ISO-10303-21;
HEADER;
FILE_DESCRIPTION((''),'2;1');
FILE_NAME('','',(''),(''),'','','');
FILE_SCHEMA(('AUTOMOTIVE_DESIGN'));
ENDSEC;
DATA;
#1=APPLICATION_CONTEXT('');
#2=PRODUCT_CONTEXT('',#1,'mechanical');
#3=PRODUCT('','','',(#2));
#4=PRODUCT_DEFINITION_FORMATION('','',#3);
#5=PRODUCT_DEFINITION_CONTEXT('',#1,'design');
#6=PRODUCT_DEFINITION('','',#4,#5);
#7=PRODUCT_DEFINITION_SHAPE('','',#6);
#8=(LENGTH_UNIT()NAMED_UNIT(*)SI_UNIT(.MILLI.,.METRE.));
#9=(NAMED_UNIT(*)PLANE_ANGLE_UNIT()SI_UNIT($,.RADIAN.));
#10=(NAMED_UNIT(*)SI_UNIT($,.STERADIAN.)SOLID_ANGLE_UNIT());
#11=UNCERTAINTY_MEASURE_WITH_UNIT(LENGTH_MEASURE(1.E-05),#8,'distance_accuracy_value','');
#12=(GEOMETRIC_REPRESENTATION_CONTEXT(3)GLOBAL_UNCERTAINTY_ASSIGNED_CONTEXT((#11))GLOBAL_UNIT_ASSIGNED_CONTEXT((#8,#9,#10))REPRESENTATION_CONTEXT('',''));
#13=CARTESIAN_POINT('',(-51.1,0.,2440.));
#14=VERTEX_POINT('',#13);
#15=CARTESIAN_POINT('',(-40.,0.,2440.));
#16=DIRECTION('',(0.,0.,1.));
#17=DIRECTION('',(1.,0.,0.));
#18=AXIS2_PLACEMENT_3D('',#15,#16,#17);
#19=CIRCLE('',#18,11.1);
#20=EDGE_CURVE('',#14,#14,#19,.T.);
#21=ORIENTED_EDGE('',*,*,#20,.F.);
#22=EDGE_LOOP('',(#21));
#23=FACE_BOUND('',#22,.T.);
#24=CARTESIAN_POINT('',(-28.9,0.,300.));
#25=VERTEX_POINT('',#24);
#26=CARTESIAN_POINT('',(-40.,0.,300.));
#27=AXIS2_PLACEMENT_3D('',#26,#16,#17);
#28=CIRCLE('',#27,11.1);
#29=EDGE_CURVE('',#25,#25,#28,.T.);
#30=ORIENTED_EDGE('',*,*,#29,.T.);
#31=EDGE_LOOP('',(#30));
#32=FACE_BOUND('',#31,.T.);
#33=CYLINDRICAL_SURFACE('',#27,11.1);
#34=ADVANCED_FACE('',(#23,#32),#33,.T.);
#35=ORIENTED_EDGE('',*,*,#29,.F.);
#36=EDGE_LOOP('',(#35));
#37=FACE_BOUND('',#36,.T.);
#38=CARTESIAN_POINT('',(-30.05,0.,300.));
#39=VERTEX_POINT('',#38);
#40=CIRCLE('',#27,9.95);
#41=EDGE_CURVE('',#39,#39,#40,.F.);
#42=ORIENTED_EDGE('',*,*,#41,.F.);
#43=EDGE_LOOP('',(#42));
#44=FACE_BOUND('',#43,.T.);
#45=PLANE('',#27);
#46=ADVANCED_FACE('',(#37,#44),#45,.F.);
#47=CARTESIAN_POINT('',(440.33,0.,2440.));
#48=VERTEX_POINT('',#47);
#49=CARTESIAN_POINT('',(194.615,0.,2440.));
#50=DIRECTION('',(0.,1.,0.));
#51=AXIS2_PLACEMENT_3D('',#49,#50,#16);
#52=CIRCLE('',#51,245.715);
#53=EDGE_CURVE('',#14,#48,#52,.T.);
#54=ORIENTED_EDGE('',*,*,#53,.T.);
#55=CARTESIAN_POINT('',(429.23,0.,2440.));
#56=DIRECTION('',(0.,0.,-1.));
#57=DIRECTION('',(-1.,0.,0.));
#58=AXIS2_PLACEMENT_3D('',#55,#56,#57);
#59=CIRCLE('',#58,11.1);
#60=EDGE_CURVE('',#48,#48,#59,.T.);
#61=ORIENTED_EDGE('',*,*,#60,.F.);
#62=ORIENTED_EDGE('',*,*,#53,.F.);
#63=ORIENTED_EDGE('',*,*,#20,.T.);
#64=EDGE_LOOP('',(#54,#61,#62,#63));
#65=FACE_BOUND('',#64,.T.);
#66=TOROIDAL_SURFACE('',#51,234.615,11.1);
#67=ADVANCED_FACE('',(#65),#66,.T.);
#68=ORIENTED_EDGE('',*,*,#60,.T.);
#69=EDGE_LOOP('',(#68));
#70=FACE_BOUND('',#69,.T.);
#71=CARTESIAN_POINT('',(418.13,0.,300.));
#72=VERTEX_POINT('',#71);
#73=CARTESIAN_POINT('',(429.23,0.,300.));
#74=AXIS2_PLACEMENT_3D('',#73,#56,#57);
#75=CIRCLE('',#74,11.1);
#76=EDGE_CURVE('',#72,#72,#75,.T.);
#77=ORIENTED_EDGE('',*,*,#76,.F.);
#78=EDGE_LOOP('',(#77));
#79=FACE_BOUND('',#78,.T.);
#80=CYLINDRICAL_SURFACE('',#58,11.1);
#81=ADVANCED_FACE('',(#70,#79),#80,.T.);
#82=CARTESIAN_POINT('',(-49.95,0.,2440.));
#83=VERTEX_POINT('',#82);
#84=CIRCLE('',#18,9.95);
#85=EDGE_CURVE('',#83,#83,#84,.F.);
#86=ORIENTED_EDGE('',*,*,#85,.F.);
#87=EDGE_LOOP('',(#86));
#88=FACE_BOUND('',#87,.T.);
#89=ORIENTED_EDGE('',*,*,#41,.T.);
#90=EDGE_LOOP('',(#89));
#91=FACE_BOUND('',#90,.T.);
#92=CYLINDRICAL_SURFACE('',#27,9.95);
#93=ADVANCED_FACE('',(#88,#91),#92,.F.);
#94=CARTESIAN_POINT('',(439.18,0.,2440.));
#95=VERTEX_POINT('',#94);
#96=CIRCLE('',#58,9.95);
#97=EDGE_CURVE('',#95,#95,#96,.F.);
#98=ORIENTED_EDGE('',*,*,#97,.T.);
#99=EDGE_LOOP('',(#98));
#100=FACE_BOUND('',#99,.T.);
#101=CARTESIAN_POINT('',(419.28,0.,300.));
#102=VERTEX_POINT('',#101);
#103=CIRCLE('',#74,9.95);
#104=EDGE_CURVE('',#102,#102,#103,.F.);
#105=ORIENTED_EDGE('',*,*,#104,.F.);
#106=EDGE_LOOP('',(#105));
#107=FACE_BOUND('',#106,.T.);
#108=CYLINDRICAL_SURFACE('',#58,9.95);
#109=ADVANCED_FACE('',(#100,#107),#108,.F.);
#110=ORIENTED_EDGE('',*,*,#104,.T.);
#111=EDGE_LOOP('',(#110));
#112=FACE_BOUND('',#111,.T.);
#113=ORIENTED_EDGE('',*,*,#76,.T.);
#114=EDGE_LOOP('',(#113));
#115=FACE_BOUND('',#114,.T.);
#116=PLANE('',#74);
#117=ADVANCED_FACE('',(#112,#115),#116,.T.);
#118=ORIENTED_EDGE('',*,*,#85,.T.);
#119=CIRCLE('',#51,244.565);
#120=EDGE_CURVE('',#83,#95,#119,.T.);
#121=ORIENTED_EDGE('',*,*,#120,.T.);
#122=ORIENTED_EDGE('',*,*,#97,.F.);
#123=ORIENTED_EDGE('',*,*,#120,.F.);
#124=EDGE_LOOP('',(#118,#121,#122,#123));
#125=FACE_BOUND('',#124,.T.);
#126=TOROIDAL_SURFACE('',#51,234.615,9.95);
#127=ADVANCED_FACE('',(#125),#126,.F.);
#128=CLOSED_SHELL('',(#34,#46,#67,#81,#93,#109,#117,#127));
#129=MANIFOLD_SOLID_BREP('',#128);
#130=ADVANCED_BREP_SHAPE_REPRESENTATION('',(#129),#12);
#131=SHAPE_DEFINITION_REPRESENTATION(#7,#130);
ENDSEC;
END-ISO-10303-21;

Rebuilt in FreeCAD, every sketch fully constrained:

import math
import FreeCAD as App
import Part
import Sketcher

V = App.Vector

doc = App.newDocument("Part")
body = doc.addObject("PartDesign::Body", "Body")

sketch1 = body.newObject("Sketcher::SketchObject", "Sketch")
sketch1.AttachmentSupport = (doc.getObject("XY_Plane"), [""])
sketch1.MapMode = "FlatFace"
sketch1.AttachmentOffset = App.Placement(V(0, 0, 300), App.Rotation())
sketch1.addGeometry(Part.Circle(V(429, 0, 0), V(0, 0, 1), 11), False)
sketch1.addGeometry(Part.Circle(V(429, 0, 0), V(0, 0, 1), 10), False)
sketch1.addConstraint(Sketcher.Constraint("Coincident", 1, 3, 0, 3))
sketch1.addConstraint(Sketcher.Constraint("PointOnObject", 0, 3, -1))
sketch1.addConstraint(Sketcher.Constraint("Diameter", 0, 22.2))
sketch1.addConstraint(Sketcher.Constraint("Diameter", 1, 19.9))
sketch1.addConstraint(Sketcher.Constraint("DistanceX", -1, 1, 0, 3, 429.23))

sketch2 = body.newObject("Sketcher::SketchObject", "Sketch001")
sketch2.AttachmentSupport = (doc.getObject("XZ_Plane"), [""])
sketch2.MapMode = "FlatFace"
sketch2.addGeometry(Part.LineSegment(V(429, 300, 0), V(429, 2440, 0)), False)
sketch2.addGeometry(Part.ArcOfCircle(Part.Circle(V(195, 2440, 0), V(0, 0, 1), 235), math.radians(0), math.radians(180)), False)
sketch2.addGeometry(Part.LineSegment(V(-40, 2440, 0), V(-40, 300, 0)), False)
sketch2.addConstraint(Sketcher.Constraint("Tangent", 0, 2, 1, 1))
sketch2.addConstraint(Sketcher.Constraint("Tangent", 1, 2, 2, 1))
sketch2.addConstraint(Sketcher.Constraint("Vertical", 0))
sketch2.addConstraint(Sketcher.Constraint("Vertical", 2))
sketch2.addConstraint(Sketcher.Constraint("Horizontal", 0, 1, 2, 2))
sketch2.addConstraint(Sketcher.Constraint("DistanceY", 0, 1, 0, 2, 2140.0))
sketch2.addConstraint(Sketcher.Constraint("DistanceY", -1, 1, 1, 3, 2440.0))
sketch2.addConstraint(Sketcher.Constraint("DistanceX", 1, 2, -1, 1, 40.0))
sketch2.addConstraint(Sketcher.Constraint("Radius", 1, 234.615))
doc.recompute()

additivepipe = body.newObject("PartDesign::AdditivePipe", "AdditivePipe")
additivepipe.Profile = sketch1
additivepipe.Spine = (sketch2, ["Edge1", "Edge2", "Edge3"])

doc.recompute()
